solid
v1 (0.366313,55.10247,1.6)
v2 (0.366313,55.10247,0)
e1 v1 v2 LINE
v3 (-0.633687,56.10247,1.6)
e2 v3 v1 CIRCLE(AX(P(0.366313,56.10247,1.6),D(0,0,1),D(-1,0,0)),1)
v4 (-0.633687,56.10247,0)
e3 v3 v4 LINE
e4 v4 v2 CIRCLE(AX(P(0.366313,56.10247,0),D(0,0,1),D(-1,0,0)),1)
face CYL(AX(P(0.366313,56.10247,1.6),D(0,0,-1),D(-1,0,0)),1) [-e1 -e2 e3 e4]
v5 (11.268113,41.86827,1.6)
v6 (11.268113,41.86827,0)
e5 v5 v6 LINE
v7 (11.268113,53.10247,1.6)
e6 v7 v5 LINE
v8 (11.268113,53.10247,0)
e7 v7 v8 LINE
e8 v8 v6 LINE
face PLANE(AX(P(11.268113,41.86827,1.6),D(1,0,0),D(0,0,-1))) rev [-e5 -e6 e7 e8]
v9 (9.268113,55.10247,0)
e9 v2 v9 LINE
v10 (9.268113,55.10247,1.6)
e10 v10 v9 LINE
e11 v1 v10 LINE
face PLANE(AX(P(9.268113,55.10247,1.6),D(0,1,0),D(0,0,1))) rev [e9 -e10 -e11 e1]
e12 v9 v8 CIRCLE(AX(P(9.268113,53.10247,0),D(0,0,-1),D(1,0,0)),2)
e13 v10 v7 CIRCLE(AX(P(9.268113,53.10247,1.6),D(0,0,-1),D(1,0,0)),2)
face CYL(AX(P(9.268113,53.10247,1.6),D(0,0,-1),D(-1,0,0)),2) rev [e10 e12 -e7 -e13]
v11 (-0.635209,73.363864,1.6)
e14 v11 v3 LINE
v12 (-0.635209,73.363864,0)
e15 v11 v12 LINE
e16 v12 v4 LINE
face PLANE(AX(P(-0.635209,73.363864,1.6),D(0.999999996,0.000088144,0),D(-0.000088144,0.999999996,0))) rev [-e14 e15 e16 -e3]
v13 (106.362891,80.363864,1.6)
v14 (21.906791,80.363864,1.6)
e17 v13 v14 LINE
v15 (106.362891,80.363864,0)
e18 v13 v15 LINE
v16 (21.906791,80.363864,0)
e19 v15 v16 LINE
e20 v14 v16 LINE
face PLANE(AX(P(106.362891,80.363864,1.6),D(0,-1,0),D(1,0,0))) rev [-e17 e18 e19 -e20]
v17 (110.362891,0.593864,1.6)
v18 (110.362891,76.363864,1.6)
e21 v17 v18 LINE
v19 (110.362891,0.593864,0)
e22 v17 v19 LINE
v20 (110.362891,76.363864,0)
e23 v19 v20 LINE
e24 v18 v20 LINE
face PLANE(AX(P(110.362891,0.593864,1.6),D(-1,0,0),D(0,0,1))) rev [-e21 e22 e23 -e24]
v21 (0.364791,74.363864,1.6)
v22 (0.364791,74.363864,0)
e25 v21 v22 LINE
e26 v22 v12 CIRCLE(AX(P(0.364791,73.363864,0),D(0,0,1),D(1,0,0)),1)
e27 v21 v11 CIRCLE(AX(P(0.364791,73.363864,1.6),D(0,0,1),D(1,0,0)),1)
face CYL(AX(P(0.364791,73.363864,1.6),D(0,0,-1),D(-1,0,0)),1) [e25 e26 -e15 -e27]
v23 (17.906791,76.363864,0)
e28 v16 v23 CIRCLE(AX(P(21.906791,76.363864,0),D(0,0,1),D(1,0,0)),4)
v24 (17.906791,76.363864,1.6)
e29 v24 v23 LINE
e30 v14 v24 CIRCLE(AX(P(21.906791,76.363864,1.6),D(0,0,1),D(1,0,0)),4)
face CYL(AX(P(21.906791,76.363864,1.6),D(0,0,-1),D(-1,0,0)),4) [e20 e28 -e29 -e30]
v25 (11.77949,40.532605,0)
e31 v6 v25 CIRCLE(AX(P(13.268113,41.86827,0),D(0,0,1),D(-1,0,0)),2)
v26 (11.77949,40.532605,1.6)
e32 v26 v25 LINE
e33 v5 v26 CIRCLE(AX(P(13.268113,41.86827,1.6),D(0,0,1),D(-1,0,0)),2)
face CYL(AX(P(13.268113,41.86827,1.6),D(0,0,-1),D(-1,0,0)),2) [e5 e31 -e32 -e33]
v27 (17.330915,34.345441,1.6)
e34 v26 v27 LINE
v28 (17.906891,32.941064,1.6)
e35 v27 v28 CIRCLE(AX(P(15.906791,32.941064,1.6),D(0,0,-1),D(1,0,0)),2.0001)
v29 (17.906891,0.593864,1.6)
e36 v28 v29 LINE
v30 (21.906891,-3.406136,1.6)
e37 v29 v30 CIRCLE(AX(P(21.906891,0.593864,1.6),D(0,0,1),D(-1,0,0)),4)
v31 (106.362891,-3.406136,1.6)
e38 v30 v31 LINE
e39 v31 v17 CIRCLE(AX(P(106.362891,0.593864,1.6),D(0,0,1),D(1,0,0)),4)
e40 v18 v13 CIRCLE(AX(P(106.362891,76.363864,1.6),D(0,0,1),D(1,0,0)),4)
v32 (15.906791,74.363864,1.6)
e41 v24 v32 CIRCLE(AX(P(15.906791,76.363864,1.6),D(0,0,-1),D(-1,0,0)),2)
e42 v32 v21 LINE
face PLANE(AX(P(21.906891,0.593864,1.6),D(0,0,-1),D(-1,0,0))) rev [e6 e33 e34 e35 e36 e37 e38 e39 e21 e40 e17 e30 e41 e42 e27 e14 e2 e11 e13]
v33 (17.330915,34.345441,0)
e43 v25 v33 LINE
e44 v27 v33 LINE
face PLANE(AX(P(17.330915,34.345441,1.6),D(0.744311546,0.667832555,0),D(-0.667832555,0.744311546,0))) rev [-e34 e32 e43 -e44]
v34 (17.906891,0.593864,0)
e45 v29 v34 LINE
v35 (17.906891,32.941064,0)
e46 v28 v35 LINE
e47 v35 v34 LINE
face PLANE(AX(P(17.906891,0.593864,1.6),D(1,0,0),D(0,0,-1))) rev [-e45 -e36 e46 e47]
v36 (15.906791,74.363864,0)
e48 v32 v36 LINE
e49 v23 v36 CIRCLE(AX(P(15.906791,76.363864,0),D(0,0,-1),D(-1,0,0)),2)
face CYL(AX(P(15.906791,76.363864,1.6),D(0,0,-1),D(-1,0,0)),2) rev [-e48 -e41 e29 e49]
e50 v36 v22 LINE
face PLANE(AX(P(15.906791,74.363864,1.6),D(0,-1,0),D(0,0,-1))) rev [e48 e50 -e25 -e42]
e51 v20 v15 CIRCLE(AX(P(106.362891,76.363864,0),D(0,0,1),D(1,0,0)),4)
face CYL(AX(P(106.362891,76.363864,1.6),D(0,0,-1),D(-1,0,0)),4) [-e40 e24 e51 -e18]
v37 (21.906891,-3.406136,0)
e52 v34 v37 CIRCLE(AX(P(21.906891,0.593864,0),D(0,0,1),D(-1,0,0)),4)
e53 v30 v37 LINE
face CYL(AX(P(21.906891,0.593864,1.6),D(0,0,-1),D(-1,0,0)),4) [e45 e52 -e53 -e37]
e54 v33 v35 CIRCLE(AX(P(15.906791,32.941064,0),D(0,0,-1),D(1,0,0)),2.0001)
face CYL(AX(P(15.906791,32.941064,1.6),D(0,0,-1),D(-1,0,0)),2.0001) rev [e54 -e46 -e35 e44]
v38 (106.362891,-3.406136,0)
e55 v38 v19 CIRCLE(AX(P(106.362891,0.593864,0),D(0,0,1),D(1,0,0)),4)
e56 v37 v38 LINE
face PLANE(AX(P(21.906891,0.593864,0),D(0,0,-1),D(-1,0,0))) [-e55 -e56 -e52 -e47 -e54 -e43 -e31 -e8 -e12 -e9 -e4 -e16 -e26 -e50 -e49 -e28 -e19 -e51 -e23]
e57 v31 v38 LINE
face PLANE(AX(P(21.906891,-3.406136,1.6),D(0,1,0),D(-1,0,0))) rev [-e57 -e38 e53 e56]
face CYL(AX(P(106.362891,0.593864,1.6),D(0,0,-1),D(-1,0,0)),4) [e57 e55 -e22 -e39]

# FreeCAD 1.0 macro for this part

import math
import FreeCAD as App
import Part
import Sketcher
Q = App.Units.Quantity

doc = App.newDocument("Part")
body = doc.addObject("PartDesign::Body", "Body")

# Sketch on XY plane
sketch1 = doc.addObject("Sketcher::SketchObject", "Sketch")
body.addObject(sketch1)
sketch1.AttachmentSupport = (doc.XY_Plane, [""])
sketch1.MapMode = "FlatFace"
sketch1.addGeometry(Part.LineSegment(App.Vector(21.9, -3.4, 0), App.Vector(106.4, -3.4, 0)), False)
sketch1.addGeometry(Part.ArcOfCircle(Part.Circle(App.Vector(106.4, 0.6, 0), App.Vector(0, 0, 1), 4), math.radians(-90), math.radians(0)), False)
sketch1.addGeometry(Part.LineSegment(App.Vector(110.4, 0.6, 0), App.Vector(110.4, 76.4, 0)), False)
sketch1.addGeometry(Part.ArcOfCircle(Part.Circle(App.Vector(106.4, 76.4, 0), App.Vector(0, 0, 1), 4), math.radians(0), math.radians(90)), False)
sketch1.addGeometry(Part.LineSegment(App.Vector(106.4, 80.4, 0), App.Vector(21.9, 80.4, 0)), False)
sketch1.addGeometry(Part.ArcOfCircle(Part.Circle(App.Vector(21.9, 76.4, 0), App.Vector(0, 0, 1), 4), math.radians(90), math.radians(180)), False)
sketch1.addGeometry(Part.ArcOfCircle(Part.Circle(App.Vector(15.9, 76.4, 0), App.Vector(0, 0, 1), 2), math.radians(-90), math.radians(0)), False)
sketch1.addGeometry(Part.LineSegment(App.Vector(15.9, 74.4, 0), App.Vector(0.4, 74.4, 0)), False)
sketch1.addGeometry(Part.ArcOfCircle(Part.Circle(App.Vector(0.4, 73.4, 0), App.Vector(0, 0, 1), 1), math.radians(90), math.radians(180)), False)
sketch1.addGeometry(Part.LineSegment(App.Vector(-0.6, 73.4, 0), App.Vector(-0.6, 56.1, 0)), False)
sketch1.addGeometry(Part.ArcOfCircle(Part.Circle(App.Vector(0.4, 56.1, 0), App.Vector(0, 0, 1), 1), math.radians(180), math.radians(270)), False)
sketch1.addGeometry(Part.LineSegment(App.Vector(0.4, 55.1, 0), App.Vector(9.3, 55.1, 0)), False)
sketch1.addGeometry(Part.ArcOfCircle(Part.Circle(App.Vector(9.3, 53.1, 0), App.Vector(0, 0, 1), 2), math.radians(0), math.radians(90)), False)
sketch1.addGeometry(Part.LineSegment(App.Vector(11.3, 53.1, 0), App.Vector(11.3, 41.9, 0)), False)
sketch1.addGeometry(Part.ArcOfCircle(Part.Circle(App.Vector(13.3, 41.9, 0), App.Vector(0, 0, 1), 2), math.radians(-180), math.radians(-138)), False)
sketch1.addGeometry(Part.LineSegment(App.Vector(11.8, 40.5, 0), App.Vector(17.3, 34.3, 0)), False)
sketch1.addGeometry(Part.ArcOfCircle(Part.Circle(App.Vector(15.9, 32.9, 0), App.Vector(0, 0, 1), 2), math.radians(0), math.radians(45)), False)
sketch1.addGeometry(Part.LineSegment(App.Vector(17.9, 32.9, 0), App.Vector(17.9, 0.6, 0)), False)
sketch1.addGeometry(Part.ArcOfCircle(Part.Circle(App.Vector(21.9, 0.6, 0), App.Vector(0, 0, 1), 4), math.radians(180), math.radians(270)), False)
sketch1.addConstraint(Sketcher.Constraint("Tangent", 0, 2, 1, 1))
sketch1.addConstraint(Sketcher.Constraint("Tangent", 1, 2, 2, 1))
sketch1.addConstraint(Sketcher.Constraint("Tangent", 2, 2, 3, 1))
sketch1.addConstraint(Sketcher.Constraint("Tangent", 3, 2, 4, 1))
sketch1.addConstraint(Sketcher.Constraint("Tangent", 4, 2, 5, 1))
sketch1.addConstraint(Sketcher.Constraint("Tangent", 5, 2, 6, 2))
sketch1.addConstraint(Sketcher.Constraint("Tangent", 6, 1, 7, 1))
sketch1.addConstraint(Sketcher.Constraint("Tangent", 7, 2, 8, 1))
sketch1.addConstraint(Sketcher.Constraint("Coincident", 8, 2, 9, 1))
sketch1.addConstraint(Sketcher.Constraint("Coincident", 9, 2, 10, 1))
sketch1.addConstraint(Sketcher.Constraint("Tangent", 10, 2, 11, 1))
sketch1.addConstraint(Sketcher.Constraint("Tangent", 11, 2, 12, 2))
sketch1.addConstraint(Sketcher.Constraint("Tangent", 12, 1, 13, 1))
sketch1.addConstraint(Sketcher.Constraint("Tangent", 13, 2, 14, 1))
sketch1.addConstraint(Sketcher.Constraint("Tangent", 14, 2, 15, 1))
sketch1.addConstraint(Sketcher.Constraint("Coincident", 15, 2, 16, 2))
sketch1.addConstraint(Sketcher.Constraint("Tangent", 16, 1, 17, 1))
sketch1.addConstraint(Sketcher.Constraint("Tangent", 17, 2, 18, 1))
sketch1.addConstraint(Sketcher.Constraint("Tangent", 18, 2, 0, 1))
sketch1.addConstraint(Sketcher.Constraint("Horizontal", 0))
sketch1.addConstraint(Sketcher.Constraint("Vertical", 2))
sketch1.addConstraint(Sketcher.Constraint("Horizontal", 4))
sketch1.addConstraint(Sketcher.Constraint("Horizontal", 7))
sketch1.addConstraint(Sketcher.Constraint("Horizontal", 11))
sketch1.addConstraint(Sketcher.Constraint("Vertical", 13))
sketch1.addConstraint(Sketcher.Constraint("Vertical", 17))
sketch1.addConstraint(Sketcher.Constraint("Equal", 1, 3))
sketch1.addConstraint(Sketcher.Constraint("Equal", 3, 5))
sketch1.addConstraint(Sketcher.Constraint("Equal", 8, 10))
sketch1.addConstraint(Sketcher.Constraint("Equal", 6, 12))
sketch1.addConstraint(Sketcher.Constraint("Equal", 12, 14))
sketch1.addConstraint(Sketcher.Constraint("Equal", 5, 18))
sketch1.addConstraint(Sketcher.Constraint("Horizontal", 5, 3, 6, 3))
sketch1.addConstraint(Sketcher.Constraint("Horizontal", 10, 3, 9, 2))
sketch1.addConstraint(Sketcher.Constraint("Vertical", 6, 3, 16, 3))
sketch1.addConstraint(Sketcher.Constraint("Radius", 1, Q("4 mm")))
sketch1.addConstraint(Sketcher.Constraint("Radius", 6, Q("2 mm")))
sketch1.addConstraint(Sketcher.Constraint("Radius", 8, Q("1 mm")))
sketch1.addConstraint(Sketcher.Constraint("Angle", 15, Q("-48.1 deg")))
sketch1.addConstraint(Sketcher.Constraint("DistanceY", 8, 2, 7, 2, Q("1 mm")))
sketch1.addConstraint(Sketcher.Constraint("DistanceY", 2, 1, 2, 2, Q("75.77 mm")))
sketch1.addConstraint(Sketcher.Constraint("Radius", 16, Q("2.0001 mm")))
sketch1.addConstraint(Sketcher.Constraint("DistanceX", 0, 1, 0, 2, Q("84.456 mm")))
sketch1.addConstraint(Sketcher.Constraint("DistanceX", 7, 2, 7, 1, Q("15.542 mm")))
sketch1.addConstraint(Sketcher.Constraint("DistanceX", 11, 1, 11, 2, Q("8.9018 mm")))
sketch1.addConstraint(Sketcher.Constraint("DistanceY", 13, 2, 13, 1, Q("11.2342 mm")))
sketch1.addConstraint(Sketcher.Constraint("DistanceY", 17, 2, 17, 1, Q("32.3472 mm")))
sketch1.addConstraint(Sketcher.Constraint("Distance", 15, Q("8.3126 mm")))
sketch1.addConstraint(Sketcher.Constraint("DistanceX", 14, 2, 16, 3, Q("4.127302 mm")))
sketch1.addConstraint(Sketcher.Constraint("DistanceX", -1, 1, 1, 3, Q("106.362891 mm")))
sketch1.addConstraint(Sketcher.Constraint("DistanceY", -1, 1, 10, 3, Q("56.10247 mm")))
pad1 = doc.addObject("PartDesign::Pad", "Pad")
body.addObject(pad1)
pad1.Profile = sketch1
pad1.Length = 1.6

doc.recompute()
